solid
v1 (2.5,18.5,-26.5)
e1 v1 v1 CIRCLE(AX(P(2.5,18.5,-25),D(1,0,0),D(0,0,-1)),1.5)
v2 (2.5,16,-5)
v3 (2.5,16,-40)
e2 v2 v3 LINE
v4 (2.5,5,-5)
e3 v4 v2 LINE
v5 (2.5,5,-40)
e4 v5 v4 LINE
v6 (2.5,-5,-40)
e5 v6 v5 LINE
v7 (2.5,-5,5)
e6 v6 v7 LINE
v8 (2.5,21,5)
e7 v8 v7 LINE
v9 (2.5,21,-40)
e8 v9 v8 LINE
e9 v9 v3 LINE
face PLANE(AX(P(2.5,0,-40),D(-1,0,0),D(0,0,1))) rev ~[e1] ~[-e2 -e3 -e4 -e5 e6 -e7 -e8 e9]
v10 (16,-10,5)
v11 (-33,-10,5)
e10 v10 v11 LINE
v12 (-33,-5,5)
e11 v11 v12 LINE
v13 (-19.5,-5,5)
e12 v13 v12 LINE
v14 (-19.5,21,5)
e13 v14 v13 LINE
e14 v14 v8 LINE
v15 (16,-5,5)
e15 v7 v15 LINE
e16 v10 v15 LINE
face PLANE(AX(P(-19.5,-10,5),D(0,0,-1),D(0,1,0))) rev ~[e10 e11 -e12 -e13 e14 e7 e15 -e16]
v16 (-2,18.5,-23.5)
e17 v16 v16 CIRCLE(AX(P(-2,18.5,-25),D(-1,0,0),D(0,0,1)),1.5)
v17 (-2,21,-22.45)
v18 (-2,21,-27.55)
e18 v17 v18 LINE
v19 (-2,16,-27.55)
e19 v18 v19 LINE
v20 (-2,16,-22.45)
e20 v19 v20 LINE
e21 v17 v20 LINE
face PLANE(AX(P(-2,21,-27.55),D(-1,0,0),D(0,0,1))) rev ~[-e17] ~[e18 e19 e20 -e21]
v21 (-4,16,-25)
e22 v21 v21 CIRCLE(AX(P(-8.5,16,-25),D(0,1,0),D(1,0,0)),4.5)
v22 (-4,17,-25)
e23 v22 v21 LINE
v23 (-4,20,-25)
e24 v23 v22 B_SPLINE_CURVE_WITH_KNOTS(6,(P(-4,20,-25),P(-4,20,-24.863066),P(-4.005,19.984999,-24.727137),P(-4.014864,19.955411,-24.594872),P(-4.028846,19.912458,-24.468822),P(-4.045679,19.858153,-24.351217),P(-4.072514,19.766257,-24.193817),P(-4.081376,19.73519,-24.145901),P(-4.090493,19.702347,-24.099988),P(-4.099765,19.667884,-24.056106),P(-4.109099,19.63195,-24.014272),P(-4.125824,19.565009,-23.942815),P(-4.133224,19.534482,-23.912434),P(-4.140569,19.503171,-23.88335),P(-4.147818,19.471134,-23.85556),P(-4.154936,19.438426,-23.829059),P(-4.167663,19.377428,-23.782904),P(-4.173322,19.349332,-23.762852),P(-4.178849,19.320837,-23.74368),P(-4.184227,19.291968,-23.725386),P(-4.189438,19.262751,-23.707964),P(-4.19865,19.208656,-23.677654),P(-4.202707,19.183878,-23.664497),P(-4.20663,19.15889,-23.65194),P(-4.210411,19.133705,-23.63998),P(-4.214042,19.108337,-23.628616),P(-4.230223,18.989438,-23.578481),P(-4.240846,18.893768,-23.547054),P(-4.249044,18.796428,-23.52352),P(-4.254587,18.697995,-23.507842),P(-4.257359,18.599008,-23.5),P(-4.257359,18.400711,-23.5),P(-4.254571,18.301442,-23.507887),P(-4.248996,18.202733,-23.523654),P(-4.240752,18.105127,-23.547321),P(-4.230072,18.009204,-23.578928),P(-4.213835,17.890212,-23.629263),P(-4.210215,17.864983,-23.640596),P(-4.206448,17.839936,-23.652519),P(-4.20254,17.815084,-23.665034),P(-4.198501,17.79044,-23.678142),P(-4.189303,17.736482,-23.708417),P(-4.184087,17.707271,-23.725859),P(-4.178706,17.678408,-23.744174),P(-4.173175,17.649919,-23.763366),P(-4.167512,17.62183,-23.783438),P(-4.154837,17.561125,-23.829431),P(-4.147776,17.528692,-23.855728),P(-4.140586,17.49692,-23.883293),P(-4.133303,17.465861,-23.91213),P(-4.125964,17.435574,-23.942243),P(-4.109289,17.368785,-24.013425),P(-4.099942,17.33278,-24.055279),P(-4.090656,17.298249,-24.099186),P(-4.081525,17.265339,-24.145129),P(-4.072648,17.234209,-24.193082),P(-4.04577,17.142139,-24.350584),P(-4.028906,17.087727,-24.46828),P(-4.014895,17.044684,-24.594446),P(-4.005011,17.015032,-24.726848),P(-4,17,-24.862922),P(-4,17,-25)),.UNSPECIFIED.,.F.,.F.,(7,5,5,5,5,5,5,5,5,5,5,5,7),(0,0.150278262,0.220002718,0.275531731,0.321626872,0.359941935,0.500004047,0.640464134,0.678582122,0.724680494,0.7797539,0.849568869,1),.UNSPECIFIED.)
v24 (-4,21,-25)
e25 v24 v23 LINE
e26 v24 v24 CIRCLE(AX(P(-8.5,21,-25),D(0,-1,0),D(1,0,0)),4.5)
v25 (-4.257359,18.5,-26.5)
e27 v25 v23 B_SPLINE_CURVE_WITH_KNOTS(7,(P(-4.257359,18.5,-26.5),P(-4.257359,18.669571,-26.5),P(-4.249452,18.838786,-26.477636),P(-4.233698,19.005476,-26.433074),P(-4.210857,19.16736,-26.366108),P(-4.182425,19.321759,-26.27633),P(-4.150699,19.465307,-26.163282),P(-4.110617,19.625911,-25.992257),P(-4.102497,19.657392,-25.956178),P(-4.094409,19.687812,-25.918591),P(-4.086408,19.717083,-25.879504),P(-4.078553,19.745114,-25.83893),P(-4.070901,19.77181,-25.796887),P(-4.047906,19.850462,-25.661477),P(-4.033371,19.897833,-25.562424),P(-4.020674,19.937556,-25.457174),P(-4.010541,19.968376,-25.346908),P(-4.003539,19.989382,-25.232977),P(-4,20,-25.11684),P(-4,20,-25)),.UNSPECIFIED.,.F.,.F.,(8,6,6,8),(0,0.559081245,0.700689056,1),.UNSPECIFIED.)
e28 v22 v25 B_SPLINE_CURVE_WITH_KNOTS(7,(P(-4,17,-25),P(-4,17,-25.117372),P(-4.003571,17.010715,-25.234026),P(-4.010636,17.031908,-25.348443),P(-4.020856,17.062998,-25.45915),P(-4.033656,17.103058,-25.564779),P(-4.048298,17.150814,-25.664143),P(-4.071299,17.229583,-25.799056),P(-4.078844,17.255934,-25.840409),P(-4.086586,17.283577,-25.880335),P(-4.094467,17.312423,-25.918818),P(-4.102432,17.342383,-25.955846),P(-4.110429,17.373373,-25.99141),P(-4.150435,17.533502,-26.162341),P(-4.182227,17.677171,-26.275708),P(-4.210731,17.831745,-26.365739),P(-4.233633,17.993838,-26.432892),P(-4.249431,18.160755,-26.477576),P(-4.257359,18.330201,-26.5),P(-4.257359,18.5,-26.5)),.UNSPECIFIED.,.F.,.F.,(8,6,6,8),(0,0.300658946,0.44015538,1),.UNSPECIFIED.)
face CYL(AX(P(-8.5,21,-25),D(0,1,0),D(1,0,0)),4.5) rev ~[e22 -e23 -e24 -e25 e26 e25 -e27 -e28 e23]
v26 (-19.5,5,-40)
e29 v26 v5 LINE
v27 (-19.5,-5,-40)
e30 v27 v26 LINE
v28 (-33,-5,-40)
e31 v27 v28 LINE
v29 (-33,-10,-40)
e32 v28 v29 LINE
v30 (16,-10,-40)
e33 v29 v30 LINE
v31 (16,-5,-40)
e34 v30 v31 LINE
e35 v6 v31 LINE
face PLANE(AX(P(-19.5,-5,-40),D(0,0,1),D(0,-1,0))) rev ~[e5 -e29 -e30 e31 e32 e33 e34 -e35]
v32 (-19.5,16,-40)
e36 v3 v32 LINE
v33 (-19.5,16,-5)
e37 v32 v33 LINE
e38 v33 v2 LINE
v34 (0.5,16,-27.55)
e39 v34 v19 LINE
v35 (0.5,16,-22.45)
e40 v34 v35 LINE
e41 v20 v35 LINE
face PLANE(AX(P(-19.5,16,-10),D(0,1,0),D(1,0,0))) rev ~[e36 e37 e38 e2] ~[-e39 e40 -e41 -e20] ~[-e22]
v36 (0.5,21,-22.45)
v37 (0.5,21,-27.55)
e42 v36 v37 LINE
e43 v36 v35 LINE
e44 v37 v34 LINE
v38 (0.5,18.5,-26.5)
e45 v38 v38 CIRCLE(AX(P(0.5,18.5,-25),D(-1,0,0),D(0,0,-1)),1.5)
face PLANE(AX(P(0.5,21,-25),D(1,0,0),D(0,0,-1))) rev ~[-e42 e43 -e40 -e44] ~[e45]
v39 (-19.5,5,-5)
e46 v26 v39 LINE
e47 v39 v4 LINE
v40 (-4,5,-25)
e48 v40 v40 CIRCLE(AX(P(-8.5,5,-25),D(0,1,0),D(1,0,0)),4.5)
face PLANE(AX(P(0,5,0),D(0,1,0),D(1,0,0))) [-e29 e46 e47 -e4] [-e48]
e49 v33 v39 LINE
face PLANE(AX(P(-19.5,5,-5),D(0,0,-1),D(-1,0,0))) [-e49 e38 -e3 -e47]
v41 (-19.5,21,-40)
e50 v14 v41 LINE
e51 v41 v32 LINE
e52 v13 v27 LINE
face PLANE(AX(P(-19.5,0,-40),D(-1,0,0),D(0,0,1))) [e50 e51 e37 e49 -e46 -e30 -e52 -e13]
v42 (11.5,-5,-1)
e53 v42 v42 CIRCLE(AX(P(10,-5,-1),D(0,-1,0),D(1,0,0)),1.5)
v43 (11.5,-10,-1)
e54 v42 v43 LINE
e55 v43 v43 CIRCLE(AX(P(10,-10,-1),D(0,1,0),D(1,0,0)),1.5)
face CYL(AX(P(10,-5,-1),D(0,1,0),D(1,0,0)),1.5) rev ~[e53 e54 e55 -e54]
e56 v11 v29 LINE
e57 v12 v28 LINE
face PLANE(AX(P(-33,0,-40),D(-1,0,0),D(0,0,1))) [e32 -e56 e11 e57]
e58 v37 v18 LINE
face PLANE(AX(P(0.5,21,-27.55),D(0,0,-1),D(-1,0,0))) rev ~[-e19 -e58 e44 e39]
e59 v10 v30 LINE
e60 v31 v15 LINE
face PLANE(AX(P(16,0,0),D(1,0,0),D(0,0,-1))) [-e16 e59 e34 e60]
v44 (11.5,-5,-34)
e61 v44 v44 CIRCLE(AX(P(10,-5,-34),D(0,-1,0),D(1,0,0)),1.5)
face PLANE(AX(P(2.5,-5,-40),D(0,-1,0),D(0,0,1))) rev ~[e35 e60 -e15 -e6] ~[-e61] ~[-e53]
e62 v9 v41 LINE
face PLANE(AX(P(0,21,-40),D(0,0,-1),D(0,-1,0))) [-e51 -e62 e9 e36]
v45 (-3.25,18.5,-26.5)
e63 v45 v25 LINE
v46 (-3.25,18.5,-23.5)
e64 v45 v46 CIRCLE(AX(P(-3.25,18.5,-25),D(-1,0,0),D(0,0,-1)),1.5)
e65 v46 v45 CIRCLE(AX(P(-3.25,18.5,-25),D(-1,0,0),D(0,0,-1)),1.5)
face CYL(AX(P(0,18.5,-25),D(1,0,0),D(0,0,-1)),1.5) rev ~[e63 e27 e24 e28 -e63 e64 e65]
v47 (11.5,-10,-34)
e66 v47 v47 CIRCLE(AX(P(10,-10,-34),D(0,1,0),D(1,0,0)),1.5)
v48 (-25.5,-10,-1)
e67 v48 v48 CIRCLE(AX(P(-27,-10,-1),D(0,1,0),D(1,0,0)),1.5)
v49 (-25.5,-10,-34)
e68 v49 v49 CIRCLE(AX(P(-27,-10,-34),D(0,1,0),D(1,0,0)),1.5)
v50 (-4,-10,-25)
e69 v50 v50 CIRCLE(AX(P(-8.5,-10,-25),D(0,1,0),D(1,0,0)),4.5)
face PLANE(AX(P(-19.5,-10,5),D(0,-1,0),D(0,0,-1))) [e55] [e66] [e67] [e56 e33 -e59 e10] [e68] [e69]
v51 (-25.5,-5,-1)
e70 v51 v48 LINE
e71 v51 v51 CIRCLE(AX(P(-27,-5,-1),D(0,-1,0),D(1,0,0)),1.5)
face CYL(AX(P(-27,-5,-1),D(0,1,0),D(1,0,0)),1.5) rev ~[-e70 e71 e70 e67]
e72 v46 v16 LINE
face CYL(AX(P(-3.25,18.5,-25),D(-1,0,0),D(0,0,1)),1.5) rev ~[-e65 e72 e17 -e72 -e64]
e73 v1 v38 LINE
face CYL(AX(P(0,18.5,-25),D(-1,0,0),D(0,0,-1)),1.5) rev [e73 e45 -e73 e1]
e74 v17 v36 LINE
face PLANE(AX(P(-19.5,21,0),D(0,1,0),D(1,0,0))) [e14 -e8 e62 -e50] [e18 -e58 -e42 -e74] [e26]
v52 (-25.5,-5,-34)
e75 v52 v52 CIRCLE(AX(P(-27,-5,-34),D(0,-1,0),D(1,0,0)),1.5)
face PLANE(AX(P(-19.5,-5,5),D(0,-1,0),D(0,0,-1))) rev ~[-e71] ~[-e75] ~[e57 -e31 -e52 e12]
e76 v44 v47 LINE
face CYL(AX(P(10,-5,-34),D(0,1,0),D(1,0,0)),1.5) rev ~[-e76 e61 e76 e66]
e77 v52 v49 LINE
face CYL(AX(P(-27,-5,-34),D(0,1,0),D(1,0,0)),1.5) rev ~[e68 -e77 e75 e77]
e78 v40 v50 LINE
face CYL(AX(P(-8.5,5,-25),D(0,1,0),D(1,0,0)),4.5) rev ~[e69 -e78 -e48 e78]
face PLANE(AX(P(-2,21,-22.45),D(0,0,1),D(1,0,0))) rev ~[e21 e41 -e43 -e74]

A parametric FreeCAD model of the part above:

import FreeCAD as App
import Part
import Sketcher

doc = App.newDocument("Part")
body = doc.addObject("PartDesign::Body", "Body")

# Sketch on XZ plane
sketch1 = body.newObject("Sketcher::SketchObject", "Sketch")
sketch1.AttachmentSupport = (doc.getObject("XZ_Plane"), [""])
sketch1.MapMode = "FlatFace"
sketch1.addGeometry(Part.LineSegment(App.Vector(-17, 0, 0), App.Vector(0, 0, 0)), False)
sketch1.addGeometry(Part.LineSegment(App.Vector(0, 0, 0), App.Vector(0, -40, 0)), False)
sketch1.addGeometry(Part.LineSegment(App.Vector(0, -40, 0), App.Vector(-17, -40, 0)), False)
sketch1.addGeometry(Part.LineSegment(App.Vector(-17, -40, 0), App.Vector(-17, 0, 0)), False)
sketch1.addConstraint(Sketcher.Constraint("Coincident", 0, 2, 1, 1))
sketch1.addConstraint(Sketcher.Constraint("Coincident", 1, 2, 2, 1))
sketch1.addConstraint(Sketcher.Constraint("Coincident", 2, 2, 3, 1))
sketch1.addConstraint(Sketcher.Constraint("Coincident", 3, 2, 0, 1))
sketch1.addConstraint(Sketcher.Constraint("Horizontal", 0))
sketch1.addConstraint(Sketcher.Constraint("Vertical", 1))
sketch1.addConstraint(Sketcher.Constraint("Horizontal", 2))
sketch1.addConstraint(Sketcher.Constraint("Vertical", 3))
sketch1.addConstraint(Sketcher.Constraint("Coincident", 0, 2, -1, 1))
sketch1.addConstraint(Sketcher.Constraint("DistanceX", 0, 1, 0, 2, 17.0))
sketch1.addConstraint(Sketcher.Constraint("DistanceY", 1, 2, 1, 1, 40.0))
pad1 = body.newObject("PartDesign::Pad", "Pad")
pad1.Profile = sketch1
pad1.Length = 5
pad1.Reversed = True

# Sketch on XZ plane
sketch2 = body.newObject("Sketcher::SketchObject", "Sketch001")
sketch2.AttachmentSupport = (doc.getObject("XZ_Plane"), [""])
sketch2.MapMode = "FlatFace"
sketch2.AttachmentOffset = App.Placement(App.Vector(0, 0, -5), App.Rotation())
sketch2.addGeometry(Part.LineSegment(App.Vector(-17, -10, 0), App.Vector(-17, 0, 0)), False)
sketch2.addGeometry(Part.LineSegment(App.Vector(-17, 0, 0), App.Vector(0, 0, 0)), False)
sketch2.addGeometry(Part.LineSegment(App.Vector(0, 0, 0), App.Vector(0, -10, 0)), False)
sketch2.addGeometry(Part.LineSegment(App.Vector(0, -10, 0), App.Vector(-17, -10, 0)), False)
sketch2.addConstraint(Sketcher.Constraint("Coincident", 0, 2, 1, 1))
sketch2.addConstraint(Sketcher.Constraint("Coincident", 1, 2, 2, 1))
sketch2.addConstraint(Sketcher.Constraint("Coincident", 2, 2, 3, 1))
sketch2.addConstraint(Sketcher.Constraint("Coincident", 3, 2, 0, 1))
sketch2.addConstraint(Sketcher.Constraint("Vertical", 0))
sketch2.addConstraint(Sketcher.Constraint("Horizontal", 1))
sketch2.addConstraint(Sketcher.Constraint("Vertical", 2))
sketch2.addConstraint(Sketcher.Constraint("Horizontal", 3))
sketch2.addConstraint(Sketcher.Constraint("Coincident", 1, 2, -1, 1))
sketch2.addConstraint(Sketcher.Constraint("DistanceY", 0, 1, 0, 2, 10.0))
sketch2.addConstraint(Sketcher.Constraint("DistanceX", 1, 1, 1, 2, 17.0))
pad2 = body.newObject("PartDesign::Pad", "Pad001")
pad2.Profile = sketch2
pad2.Length = 11
pad2.Reversed = True

# Sketch on XZ plane
sketch3 = body.newObject("Sketcher::SketchObject", "Sketch002")
sketch3.AttachmentSupport = (doc.getObject("XZ_Plane"), [""])
sketch3.MapMode = "FlatFace"
sketch3.AttachmentOffset = App.Placement(App.Vector(0, 0, -16), App.Rotation())
sketch3.addGeometry(Part.LineSegment(App.Vector(-17, -40, 0), App.Vector(-17, 0, 0)), False)
sketch3.addGeometry(Part.LineSegment(App.Vector(-17, 0, 0), App.Vector(0, 0, 0)), False)
sketch3.addGeometry(Part.LineSegment(App.Vector(0, 0, 0), App.Vector(0, -40, 0)), False)
sketch3.addGeometry(Part.LineSegment(App.Vector(0, -40, 0), App.Vector(-17, -40, 0)), False)
sketch3.addConstraint(Sketcher.Constraint("Coincident", 0, 2, 1, 1))
sketch3.addConstraint(Sketcher.Constraint("Coincident", 1, 2, 2, 1))
sketch3.addConstraint(Sketcher.Constraint("Coincident", 2, 2, 3, 1))
sketch3.addConstraint(Sketcher.Constraint("Coincident", 3, 2, 0, 1))
sketch3.addConstraint(Sketcher.Constraint("Vertical", 0))
sketch3.addConstraint(Sketcher.Constraint("Horizontal", 1))
sketch3.addConstraint(Sketcher.Constraint("Vertical", 2))
sketch3.addConstraint(Sketcher.Constraint("Horizontal", 3))
sketch3.addConstraint(Sketcher.Constraint("Coincident", 1, 2, -1, 1))
sketch3.addConstraint(Sketcher.Constraint("DistanceX", 1, 1, 1, 2, 17.0))
sketch3.addConstraint(Sketcher.Constraint("DistanceY", 0, 1, 0, 2, 40.0))
pad3 = body.newObject("PartDesign::Pad", "Pad002")
pad3.Profile = sketch3
pad3.Length = 5
pad3.Reversed = True

# Sketch on XZ plane
sketch4 = body.newObject("Sketcher::SketchObject", "Sketch003")
sketch4.AttachmentSupport = (doc.getObject("XZ_Plane"), [""])
sketch4.MapMode = "FlatFace"
sketch4.AttachmentOffset = App.Placement(App.Vector(0, 0, -21), App.Rotation())
sketch4.addGeometry(Part.Circle(App.Vector(-8.5, -25, 0), App.Vector(0, 0, 1), 4.5), False)
sketch4.addConstraint(Sketcher.Constraint("Diameter", 0, 9.0))
sketch4.addConstraint(Sketcher.Constraint("DistanceX", 0, 3, -1, 1, 8.5))
sketch4.addConstraint(Sketcher.Constraint("DistanceY", 0, 3, -1, 1, 25.0))
pocket1 = body.newObject("PartDesign::Pocket", "Pocket")
pocket1.Profile = sketch4
pocket1.Length = 21
pocket1.Reversed = True

# Sketch on XZ plane
sketch5 = body.newObject("Sketcher::SketchObject", "Sketch004")
sketch5.AttachmentSupport = (doc.getObject("XZ_Plane"), [""])
sketch5.MapMode = "FlatFace"
sketch5.AttachmentOffset = App.Placement(App.Vector(0, 0, -21), App.Rotation())
sketch5.addGeometry(Part.LineSegment(App.Vector(-3.25, -27.55, 0), App.Vector(-3.25, -22.45, 0)), False)
sketch5.addGeometry(Part.LineSegment(App.Vector(-3.25, -22.45, 0), App.Vector(-0.75, -22.45, 0)), False)
sketch5.addGeometry(Part.LineSegment(App.Vector(-0.75, -22.45, 0), App.Vector(-0.75, -27.55, 0)), False)
sketch5.addGeometry(Part.LineSegment(App.Vector(-0.75, -27.55, 0), App.Vector(-3.25, -27.55, 0)), False)
sketch5.addConstraint(Sketcher.Constraint("Coincident", 0, 2, 1, 1))
sketch5.addConstraint(Sketcher.Constraint("Coincident", 1, 2, 2, 1))
sketch5.addConstraint(Sketcher.Constraint("Coincident", 2, 2, 3, 1))
sketch5.addConstraint(Sketcher.Constraint("Coincident", 3, 2, 0, 1))
sketch5.addConstraint(Sketcher.Constraint("Vertical", 0))
sketch5.addConstraint(Sketcher.Constraint("Horizontal", 1))
sketch5.addConstraint(Sketcher.Constraint("Vertical", 2))
sketch5.addConstraint(Sketcher.Constraint("Horizontal", 3))
sketch5.addConstraint(Sketcher.Constraint("DistanceX", 1, 1, 1, 2, 2.5))
sketch5.addConstraint(Sketcher.Constraint("DistanceY", 0, 1, 0, 2, 5.1))
sketch5.addConstraint(Sketcher.Constraint("DistanceX", 0, 2, -1, 1, 3.25))
sketch5.addConstraint(Sketcher.Constraint("DistanceY", 0, 2, -1, 1, 22.45))
pocket2 = body.newObject("PartDesign::Pocket", "Pocket001")
pocket2.Profile = sketch5
pocket2.Length = 5
pocket2.Reversed = True

# Sketch on YZ plane
sketch6 = body.newObject("Sketcher::SketchObject", "Sketch005")
sketch6.AttachmentSupport = (doc.getObject("YZ_Plane"), [""])
sketch6.MapMode = "FlatFace"
sketch6.addGeometry(Part.Circle(App.Vector(18.5, -25, 0), App.Vector(0, 0, 1), 1.5), False)
sketch6.addConstraint(Sketcher.Constraint("Diameter", 0, 3.0))
sketch6.addConstraint(Sketcher.Constraint("DistanceY", 0, 3, -1, 1, 25.0))
sketch6.addConstraint(Sketcher.Constraint("DistanceX", -1, 1, 0, 3, 18.5))
pocket3 = body.newObject("PartDesign::Pocket", "Pocket002")
pocket3.Profile = sketch6
pocket3.Length = 10

# Sketch on YZ plane
sketch7 = body.newObject("Sketcher::SketchObject", "Sketch006")
sketch7.AttachmentSupport = (doc.getObject("YZ_Plane"), [""])
sketch7.MapMode = "FlatFace"
sketch7.AttachmentOffset = App.Placement(App.Vector(0, 0, -17), App.Rotation())
sketch7.addGeometry(Part.LineSegment(App.Vector(0, 0, 0), App.Vector(21, 0, 0)), False)
sketch7.addGeometry(Part.LineSegment(App.Vector(21, 0, 0), App.Vector(21, -40, 0)), False)
sketch7.addGeometry(Part.LineSegment(App.Vector(21, -40, 0), App.Vector(16, -40, 0)), False)
sketch7.addGeometry(Part.LineSegment(App.Vector(16, -40, 0), App.Vector(16, -10, 0)), False)
sketch7.addGeometry(Part.LineSegment(App.Vector(16, -10, 0), App.Vector(5, -10, 0)), False)
sketch7.addGeometry(Part.LineSegment(App.Vector(5, -10, 0), App.Vector(5, -40, 0)), False)
sketch7.addGeometry(Part.LineSegment(App.Vector(5, -40, 0), App.Vector(0, -40, 0)), False)
sketch7.addGeometry(Part.LineSegment(App.Vector(0, -40, 0), App.Vector(0, 0, 0)), False)
sketch7.addConstraint(Sketcher.Constraint("Coincident", 0, 2, 1, 1))
sketch7.addConstraint(Sketcher.Constraint("Coincident", 1, 2, 2, 1))
sketch7.addConstraint(Sketcher.Constraint("Coincident", 2, 2, 3, 1))
sketch7.addConstraint(Sketcher.Constraint("Coincident", 3, 2, 4, 1))
sketch7.addConstraint(Sketcher.Constraint("Coincident", 4, 2, 5, 1))
sketch7.addConstraint(Sketcher.Constraint("Coincident", 5, 2, 6, 1))
sketch7.addConstraint(Sketcher.Constraint("Coincident", 6, 2, 7, 1))
sketch7.addConstraint(Sketcher.Constraint("Coincident", 7, 2, 0, 1))
sketch7.addConstraint(Sketcher.Constraint("Horizontal", 0))
sketch7.addConstraint(Sketcher.Constraint("Vertical", 1))
sketch7.addConstraint(Sketcher.Constraint("Horizontal", 2))
sketch7.addConstraint(Sketcher.Constraint("Vertical", 3))
sketch7.addConstraint(Sketcher.Constraint("Horizontal", 4))
sketch7.addConstraint(Sketcher.Constraint("Vertical", 5))
sketch7.addConstraint(Sketcher.Constraint("Horizontal", 6))
sketch7.addConstraint(Sketcher.Constraint("Vertical", 7))
sketch7.addConstraint(Sketcher.Constraint("Coincident", 7, 2, -1, 1))
sketch7.addConstraint(Sketcher.Constraint("Horizontal", 2, 2, 5, 2))
sketch7.addConstraint(Sketcher.Constraint("Equal", 2, 6))
sketch7.addConstraint(Sketcher.Constraint("DistanceY", 3, 2, -1, 1, 10.0))
sketch7.addConstraint(Sketcher.Constraint("DistanceX", 0, 1, 0, 2, 21.0))
sketch7.addConstraint(Sketcher.Constraint("DistanceX", 2, 2, 2, 1, 5.0))
sketch7.addConstraint(Sketcher.Constraint("DistanceY", 1, 2, 1, 1, 40.0))
pad4 = body.newObject("PartDesign::Pad", "Pad003")
pad4.Profile = sketch7
pad4.Length = 2.5
pad4.Reversed = True

# Sketch on YZ plane
sketch8 = body.newObject("Sketcher::SketchObject", "Sketch007")
sketch8.AttachmentSupport = (doc.getObject("YZ_Plane"), [""])
sketch8.MapMode = "FlatFace"
sketch8.addGeometry(Part.LineSegment(App.Vector(21, 0, 0), App.Vector(0, 0, 0)), False)
sketch8.addGeometry(Part.LineSegment(App.Vector(0, 0, 0), App.Vector(0, -40, 0)), False)
sketch8.addGeometry(Part.LineSegment(App.Vector(0, -40, 0), App.Vector(5, -40, 0)), False)
sketch8.addGeometry(Part.LineSegment(App.Vector(5, -40, 0), App.Vector(5, -10, 0)), False)
sketch8.addGeometry(Part.LineSegment(App.Vector(5, -10, 0), App.Vector(16, -10, 0)), False)
sketch8.addGeometry(Part.LineSegment(App.Vector(16, -10, 0), App.Vector(16, -40, 0)), False)
sketch8.addGeometry(Part.LineSegment(App.Vector(16, -40, 0), App.Vector(21, -40, 0)), False)
sketch8.addGeometry(Part.LineSegment(App.Vector(21, -40, 0), App.Vector(21, 0, 0)), False)
sketch8.addGeometry(Part.Circle(App.Vector(18.5, -25, 0), App.Vector(0, 0, 1), 1.5), False)
sketch8.addConstraint(Sketcher.Constraint("Coincident", 0, 2, 1, 1))
sketch8.addConstraint(Sketcher.Constraint("Coincident", 1, 2, 2, 1))
sketch8.addConstraint(Sketcher.Constraint("Coincident", 2, 2, 3, 1))
sketch8.addConstraint(Sketcher.Constraint("Coincident", 3, 2, 4, 1))
sketch8.addConstraint(Sketcher.Constraint("Coincident", 4, 2, 5, 1))
sketch8.addConstraint(Sketcher.Constraint("Coincident", 5, 2, 6, 1))
sketch8.addConstraint(Sketcher.Constraint("Coincident", 6, 2, 7, 1))
sketch8.addConstraint(Sketcher.Constraint("Coincident", 7, 2, 0, 1))
sketch8.addConstraint(Sketcher.Constraint("Horizontal", 0))
sketch8.addConstraint(Sketcher.Constraint("Vertical", 1))
sketch8.addConstraint(Sketcher.Constraint("Horizontal", 2))
sketch8.addConstraint(Sketcher.Constraint("Vertical", 3))
sketch8.addConstraint(Sketcher.Constraint("Horizontal", 4))
sketch8.addConstraint(Sketcher.Constraint("Vertical", 5))
sketch8.addConstraint(Sketcher.Constraint("Horizontal", 6))
sketch8.addConstraint(Sketcher.Constraint("Vertical", 7))
sketch8.addConstraint(Sketcher.Constraint("Coincident", 0, 2, -1, 1))
sketch8.addConstraint(Sketcher.Constraint("Horizontal", 2, 2, 5, 2))
sketch8.addConstraint(Sketcher.Constraint("Equal", 2, 6))
sketch8.addConstraint(Sketcher.Constraint("Diameter", 8, 3.0))
sketch8.addConstraint(Sketcher.Constraint("DistanceX", 0, 2, 0, 1, 21.0))
sketch8.addConstraint(Sketcher.Constraint("DistanceX", 2, 1, 2, 2, 5.0))
sketch8.addConstraint(Sketcher.Constraint("DistanceY", 1, 2, 1, 1, 40.0))
sketch8.addConstraint(Sketcher.Constraint("DistanceY", 3, 1, 3, 2, 30.0))
sketch8.addConstraint(Sketcher.Constraint("DistanceY", 8, 3, -1, 1, 25.0))
sketch8.addConstraint(Sketcher.Constraint("DistanceX", -1, 1, 8, 3, 18.5))
pad5 = body.newObject("PartDesign::Pad", "Pad004")
pad5.Profile = sketch8
pad5.Length = 2.5

# Sketch on XZ plane
sketch9 = body.newObject("Sketcher::SketchObject", "Sketch008")
sketch9.AttachmentSupport = (doc.getObject("XZ_Plane"), [""])
sketch9.MapMode = "FlatFace"
sketch9.AttachmentOffset = App.Placement(App.Vector(0, 0, -21), App.Rotation())
sketch9.addGeometry(Part.LineSegment(App.Vector(-0.75, -22.45, 0), App.Vector(-0.75, -27.55, 0)), False)
sketch9.addGeometry(Part.LineSegment(App.Vector(-0.75, -27.55, 0), App.Vector(-3.25, -27.55, 0)), False)
sketch9.addGeometry(Part.LineSegment(App.Vector(-3.25, -27.55, 0), App.Vector(-3.25, -22.45, 0)), False)
sketch9.addGeometry(Part.LineSegment(App.Vector(-3.25, -22.45, 0), App.Vector(-0.75, -22.45, 0)), False)
sketch9.addConstraint(Sketcher.Constraint("Coincident", 0, 2, 1, 1))
sketch9.addConstraint(Sketcher.Constraint("Coincident", 1, 2, 2, 1))
sketch9.addConstraint(Sketcher.Constraint("Coincident", 2, 2, 3, 1))
sketch9.addConstraint(Sketcher.Constraint("Coincident", 3, 2, 0, 1))
sketch9.addConstraint(Sketcher.Constraint("Vertical", 0))
sketch9.addConstraint(Sketcher.Constraint("Horizontal", 1))
sketch9.addConstraint(Sketcher.Constraint("Vertical", 2))
sketch9.addConstraint(Sketcher.Constraint("Horizontal", 3))
sketch9.addConstraint(Sketcher.Constraint("DistanceX", 1, 2, 1, 1, 2.5))
sketch9.addConstraint(Sketcher.Constraint("DistanceY", 0, 2, 0, 1, 5.1))
sketch9.addConstraint(Sketcher.Constraint("DistanceX", 0, 2, -1, 1, 0.75))
sketch9.addConstraint(Sketcher.Constraint("DistanceY", 0, 2, -1, 1, 27.55))
pad6 = body.newObject("PartDesign::Pad", "Pad005")
pad6.Profile = sketch9
pad6.Length = 5

# Sketch on XZ plane
sketch10 = body.newObject("Sketcher::SketchObject", "Sketch009")
sketch10.AttachmentSupport = (doc.getObject("XZ_Plane"), [""])
sketch10.MapMode = "FlatFace"
sketch10.AttachmentOffset = App.Placement(App.Vector(0, 0, -21), App.Rotation())
sketch10.addGeometry(Part.LineSegment(App.Vector(-2, -27.55, 0), App.Vector(-2, -22.45, 0)), False)
sketch10.addGeometry(Part.LineSegment(App.Vector(-2, -22.45, 0), App.Vector(0.5, -22.45, 0)), False)
sketch10.addGeometry(Part.LineSegment(App.Vector(0.5, -22.45, 0), App.Vector(0.5, -27.55, 0)), False)
sketch10.addGeometry(Part.LineSegment(App.Vector(0.5, -27.55, 0), App.Vector(-2, -27.55, 0)), False)
sketch10.addConstraint(Sketcher.Constraint("Coincident", 0, 2, 1, 1))
sketch10.addConstraint(Sketcher.Constraint("Coincident", 1, 2, 2, 1))
sketch10.addConstraint(Sketcher.Constraint("Coincident", 2, 2, 3, 1))
sketch10.addConstraint(Sketcher.Constraint("Coincident", 3, 2, 0, 1))
sketch10.addConstraint(Sketcher.Constraint("Vertical", 0))
sketch10.addConstraint(Sketcher.Constraint("Horizontal", 1))
sketch10.addConstraint(Sketcher.Constraint("Vertical", 2))
sketch10.addConstraint(Sketcher.Constraint("Horizontal", 3))
sketch10.addConstraint(Sketcher.Constraint("DistanceX", 1, 1, 1, 2, 2.5))
sketch10.addConstraint(Sketcher.Constraint("DistanceY", 0, 1, 0, 2, 5.1))
sketch10.addConstraint(Sketcher.Constraint("DistanceX", 0, 2, -1, 1, 2.0))
sketch10.addConstraint(Sketcher.Constraint("DistanceY", 0, 2, -1, 1, 22.45))
pocket4 = body.newObject("PartDesign::Pocket", "Pocket003")
pocket4.Profile = sketch10
pocket4.Length = 5
pocket4.Reversed = True

# Sketch on YZ plane
sketch11 = body.newObject("Sketcher::SketchObject", "Sketch010")
sketch11.AttachmentSupport = (doc.getObject("YZ_Plane"), [""])
sketch11.MapMode = "FlatFace"
sketch11.AttachmentOffset = App.Placement(App.Vector(0, 0, -3.25), App.Rotation())
sketch11.addGeometry(Part.Circle(App.Vector(18.5, -25, 0), App.Vector(0, 0, 1), 1.5), False)
sketch11.addConstraint(Sketcher.Constraint("Diameter", 0, 3.0))
sketch11.addConstraint(Sketcher.Constraint("DistanceY", 0, 3, -1, 1, 25.0))
sketch11.addConstraint(Sketcher.Constraint("DistanceX", -1, 1, 0, 3, 18.5))
pocket5 = body.newObject("PartDesign::Pocket", "Pocket004")
pocket5.Profile = sketch11
pocket5.Length = 8
pocket5.Reversed = True

# Sketch on XY plane
sketch12 = body.newObject("Sketcher::SketchObject", "Sketch011")
sketch12.AttachmentSupport = (doc.getObject("XY_Plane"), [""])
sketch12.MapMode = "FlatFace"
sketch12.addGeometry(Part.LineSegment(App.Vector(-19.5, 0, 0), App.Vector(2.5, 0, 0)), False)
sketch12.addGeometry(Part.LineSegment(App.Vector(2.5, 0, 0), App.Vector(2.5, 21, 0)), False)
sketch12.addGeometry(Part.LineSegment(App.Vector(2.5, 21, 0), App.Vector(-19.5, 21, 0)), False)
sketch12.addGeometry(Part.LineSegment(App.Vector(-19.5, 21, 0), App.Vector(-19.5, 0, 0)), False)
sketch12.addConstraint(Sketcher.Constraint("Coincident", 0, 2, 1, 1))
sketch12.addConstraint(Sketcher.Constraint("Coincident", 1, 2, 2, 1))
sketch12.addConstraint(Sketcher.Constraint("Coincident", 2, 2, 3, 1))
sketch12.addConstraint(Sketcher.Constraint("Coincident", 3, 2, 0, 1))
sketch12.addConstraint(Sketcher.Constraint("Horizontal", 0))
sketch12.addConstraint(Sketcher.Constraint("Vertical", 1))
sketch12.addConstraint(Sketcher.Constraint("Horizontal", 2))
sketch12.addConstraint(Sketcher.Constraint("Vertical", 3))
sketch12.addConstraint(Sketcher.Constraint("PointOnObject", 0, 2, -1))
sketch12.addConstraint(Sketcher.Constraint("DistanceX", 0, 1, 0, 2, 22.0))
sketch12.addConstraint(Sketcher.Constraint("DistanceY", 1, 1, 1, 2, 21.0))
sketch12.addConstraint(Sketcher.Constraint("DistanceX", -1, 1, 0, 2, 2.5))
pad7 = body.newObject("PartDesign::Pad", "Pad006")
pad7.Profile = sketch12
pad7.Length = 5

# Sketch on XY plane
sketch13 = body.newObject("Sketcher::SketchObject", "Sketch012")
sketch13.AttachmentSupport = (doc.getObject("XY_Plane"), [""])
sketch13.MapMode = "FlatFace"
sketch13.AttachmentOffset = App.Placement(App.Vector(0, 0, -10), App.Rotation())
sketch13.addGeometry(Part.LineSegment(App.Vector(-19.5, 5, 0), App.Vector(-19.5, 16, 0)), False)
sketch13.addGeometry(Part.LineSegment(App.Vector(-19.5, 16, 0), App.Vector(2.5, 16, 0)), False)
sketch13.addGeometry(Part.LineSegment(App.Vector(2.5, 16, 0), App.Vector(2.5, 5, 0)), False)
sketch13.addGeometry(Part.LineSegment(App.Vector(2.5, 5, 0), App.Vector(-19.5, 5, 0)), False)
sketch13.addConstraint(Sketcher.Constraint("Coincident", 0, 2, 1, 1))
sketch13.addConstraint(Sketcher.Constraint("Coincident", 1, 2, 2, 1))
sketch13.addConstraint(Sketcher.Constraint("Coincident", 2, 2, 3, 1))
sketch13.addConstraint(Sketcher.Constraint("Coincident", 3, 2, 0, 1))
sketch13.addConstraint(Sketcher.Constraint("Vertical", 0))
sketch13.addConstraint(Sketcher.Constraint("Horizontal", 1))
sketch13.addConstraint(Sketcher.Constraint("Vertical", 2))
sketch13.addConstraint(Sketcher.Constraint("Horizontal", 3))
sketch13.addConstraint(Sketcher.Constraint("DistanceX", 1, 1, 1, 2, 22.0))
sketch13.addConstraint(Sketcher.Constraint("DistanceY", 0, 1, 0, 2, 11.0))
sketch13.addConstraint(Sketcher.Constraint("DistanceY", -1, 1, 0, 2, 16.0))
sketch13.addConstraint(Sketcher.Constraint("DistanceX", 0, 2, -1, 1, 19.5))
pocket6 = body.newObject("PartDesign::Pocket", "Pocket005")
pocket6.Profile = sketch13
pocket6.Length = 5
pocket6.Reversed = True

# Sketch on YZ plane
sketch14 = body.newObject("Sketcher::SketchObject", "Sketch013")
sketch14.AttachmentSupport = (doc.getObject("YZ_Plane"), [""])
sketch14.MapMode = "FlatFace"
sketch14.AttachmentOffset = App.Placement(App.Vector(0, 0, -19.5), App.Rotation())
sketch14.addGeometry(Part.LineSegment(App.Vector(5, -40, 0), App.Vector(0, -40, 0)), False)
sketch14.addGeometry(Part.LineSegment(App.Vector(0, -40, 0), App.Vector(0, 5, 0)), False)
sketch14.addGeometry(Part.LineSegment(App.Vector(0, 5, 0), App.Vector(5, 5, 0)), False)
sketch14.addGeometry(Part.LineSegment(App.Vector(5, 5, 0), App.Vector(5, -40, 0)), False)
sketch14.addConstraint(Sketcher.Constraint("Coincident", 0, 2, 1, 1))
sketch14.addConstraint(Sketcher.Constraint("Coincident", 1, 2, 2, 1))
sketch14.addConstraint(Sketcher.Constraint("Coincident", 2, 2, 3, 1))
sketch14.addConstraint(Sketcher.Constraint("Coincident", 3, 2, 0, 1))
sketch14.addConstraint(Sketcher.Constraint("Horizontal", 0))
sketch14.addConstraint(Sketcher.Constraint("Vertical", 1))
sketch14.addConstraint(Sketcher.Constraint("Horizontal", 2))
sketch14.addConstraint(Sketcher.Constraint("Vertical", 3))
sketch14.addConstraint(Sketcher.Constraint("PointOnObject", 0, 2, -2))
sketch14.addConstraint(Sketcher.Constraint("DistanceX", 0, 2, 0, 1, 5.0))
sketch14.addConstraint(Sketcher.Constraint("DistanceY", 1, 1, 1, 2, 45.0))
sketch14.addConstraint(Sketcher.Constraint("DistanceY", 0, 2, -1, 1, 40.0))
pad8 = body.newObject("PartDesign::Pad", "Pad007")
pad8.Profile = sketch14
pad8.Length = 13.5
pad8.Reversed = True

# Sketch on YZ plane
sketch15 = body.newObject("Sketcher::SketchObject", "Sketch014")
sketch15.AttachmentSupport = (doc.getObject("YZ_Plane"), [""])
sketch15.MapMode = "FlatFace"
sketch15.AttachmentOffset = App.Placement(App.Vector(0, 0, 2.5), App.Rotation())
sketch15.addGeometry(Part.LineSegment(App.Vector(0, 5, 0), App.Vector(0, -40, 0)), False)
sketch15.addGeometry(Part.LineSegment(App.Vector(0, -40, 0), App.Vector(5, -40, 0)), False)
sketch15.addGeometry(Part.LineSegment(App.Vector(5, -40, 0), App.Vector(5, 5, 0)), False)
sketch15.addGeometry(Part.LineSegment(App.Vector(5, 5, 0), App.Vector(0, 5, 0)), False)
sketch15.addConstraint(Sketcher.Constraint("Coincident", 0, 2, 1, 1))
sketch15.addConstraint(Sketcher.Constraint("Coincident", 1, 2, 2, 1))
sketch15.addConstraint(Sketcher.Constraint("Coincident", 2, 2, 3, 1))
sketch15.addConstraint(Sketcher.Constraint("Coincident", 3, 2, 0, 1))
sketch15.addConstraint(Sketcher.Constraint("Vertical", 0))
sketch15.addConstraint(Sketcher.Constraint("Horizontal", 1))
sketch15.addConstraint(Sketcher.Constraint("Vertical", 2))
sketch15.addConstraint(Sketcher.Constraint("Horizontal", 3))
sketch15.addConstraint(Sketcher.Constraint("PointOnObject", 0, 2, -2))
sketch15.addConstraint(Sketcher.Constraint("DistanceX", 1, 1, 1, 2, 5.0))
sketch15.addConstraint(Sketcher.Constraint("DistanceY", 0, 2, 0, 1, 45.0))
sketch15.addConstraint(Sketcher.Constraint("DistanceY", 0, 2, -1, 1, 40.0))
pad9 = body.newObject("PartDesign::Pad", "Pad008")
pad9.Profile = sketch15
pad9.Length = 13.5

# Sketch on XZ plane
sketch16 = body.newObject("Sketcher::SketchObject", "Sketch015")
sketch16.AttachmentSupport = (doc.getObject("XZ_Plane"), [""])
sketch16.MapMode = "FlatFace"
sketch16.AttachmentOffset = App.Placement(App.Vector(0, 0, -5), App.Rotation())
sketch16.addGeometry(Part.Circle(App.Vector(10, -34, 0), App.Vector(0, 0, 1), 1.5), False)
sketch16.addConstraint(Sketcher.Constraint("Diameter", 0, 3.0))
sketch16.addConstraint(Sketcher.Constraint("DistanceX", -1, 1, 0, 3, 10.0))
sketch16.addConstraint(Sketcher.Constraint("DistanceY", 0, 3, -1, 1, 34.0))
pocket7 = body.newObject("PartDesign::Pocket", "Pocket006")
pocket7.Profile = sketch16
pocket7.Length = 13.5
pocket7.Reversed = True

# Sketch on XZ plane
sketch17 = body.newObject("Sketcher::SketchObject", "Sketch016")
sketch17.AttachmentSupport = (doc.getObject("XZ_Plane"), [""])
sketch17.MapMode = "FlatFace"
sketch17.AttachmentOffset = App.Placement(App.Vector(0, 0, -5), App.Rotation())
sketch17.addGeometry(Part.Circle(App.Vector(10, -1, 0), App.Vector(0, 0, 1), 1.5), False)
sketch17.addConstraint(Sketcher.Constraint("Diameter", 0, 3.0))
sketch17.addConstraint(Sketcher.Constraint("DistanceX", -1, 1, 0, 3, 10.0))
sketch17.addConstraint(Sketcher.Constraint("DistanceY", 0, 3, -1, 1, 1.0))
pocket8 = body.newObject("PartDesign::Pocket", "Pocket007")
pocket8.Profile = sketch17
pocket8.Length = 13.5
pocket8.Reversed = True

# Sketch on XZ plane
sketch18 = body.newObject("Sketcher::SketchObject", "Sketch017")
sketch18.AttachmentSupport = (doc.getObject("XZ_Plane"), [""])
sketch18.MapMode = "FlatFace"
sketch18.AttachmentOffset = App.Placement(App.Vector(0, 0, -5), App.Rotation())
sketch18.addGeometry(Part.Circle(App.Vector(-27, -34, 0), App.Vector(0, 0, 1), 1.5), False)
sketch18.addConstraint(Sketcher.Constraint("Diameter", 0, 3.0))
sketch18.addConstraint(Sketcher.Constraint("DistanceX", 0, 3, -1, 1, 27.0))
sketch18.addConstraint(Sketcher.Constraint("DistanceY", 0, 3, -1, 1, 34.0))
pocket9 = body.newObject("PartDesign::Pocket", "Pocket008")
pocket9.Profile = sketch18
pocket9.Length = 13.5
pocket9.Reversed = True

# Sketch on XZ plane
sketch19 = body.newObject("Sketcher::SketchObject", "Sketch018")
sketch19.AttachmentSupport = (doc.getObject("XZ_Plane"), [""])
sketch19.MapMode = "FlatFace"
sketch19.AttachmentOffset = App.Placement(App.Vector(0, 0, -5), App.Rotation())
sketch19.addGeometry(Part.Circle(App.Vector(-27, -1, 0), App.Vector(0, 0, 1), 1.5), False)
sketch19.addConstraint(Sketcher.Constraint("Diameter", 0, 3.0))
sketch19.addConstraint(Sketcher.Constraint("DistanceX", 0, 3, -1, 1, 27.0))
sketch19.addConstraint(Sketcher.Constraint("DistanceY", 0, 3, -1, 1, 1.0))
pocket10 = body.newObject("PartDesign::Pocket", "Pocket009")
pocket10.Profile = sketch19
pocket10.Length = 13.5
pocket10.Reversed = True

# Sketch on XZ plane
sketch20 = body.newObject("Sketcher::SketchObject", "Sketch019")
sketch20.AttachmentSupport = (doc.getObject("XZ_Plane"), [""])
sketch20.MapMode = "FlatFace"
sketch20.AttachmentOffset = App.Placement(App.Vector(0, 0, -5), App.Rotation())
sketch20.addGeometry(Part.LineSegment(App.Vector(2.5, -40, 0), App.Vector(2.5, 5, 0)), False)
sketch20.addGeometry(Part.LineSegment(App.Vector(2.5, 5, 0), App.Vector(16, 5, 0)), False)
sketch20.addGeometry(Part.LineSegment(App.Vector(16, 5, 0), App.Vector(16, -40, 0)), False)
sketch20.addGeometry(Part.LineSegment(App.Vector(16, -40, 0), App.Vector(2.5, -40, 0)), False)
sketch20.addConstraint(Sketcher.Constraint("Coincident", 0, 2, 1, 1))
sketch20.addConstraint(Sketcher.Constraint("Coincident", 1, 2, 2, 1))
sketch20.addConstraint(Sketcher.Constraint("Coincident", 2, 2, 3, 1))
sketch20.addConstraint(Sketcher.Constraint("Coincident", 3, 2, 0, 1))
sketch20.addConstraint(Sketcher.Constraint("Vertical", 0))
sketch20.addConstraint(Sketcher.Constraint("Horizontal", 1))
sketch20.addConstraint(Sketcher.Constraint("Vertical", 2))
sketch20.addConstraint(Sketcher.Constraint("Horizontal", 3))
sketch20.addConstraint(Sketcher.Constraint("DistanceY", 0, 1, 0, 2, 45.0))
sketch20.addConstraint(Sketcher.Constraint("DistanceX", 1, 1, 1, 2, 13.5))
sketch20.addConstraint(Sketcher.Constraint("DistanceY", -1, 1, 0, 2, 5.0))
sketch20.addConstraint(Sketcher.Constraint("DistanceX", -1, 1, 1, 2, 16.0))
pocket11 = body.newObject("PartDesign::Pocket", "Pocket010")
pocket11.Profile = sketch20
pocket11.Length = 10
pocket11.Reversed = True

# Sketch on XZ plane
sketch21 = body.newObject("Sketcher::SketchObject", "Sketch020")
sketch21.AttachmentSupport = (doc.getObject("XZ_Plane"), [""])
sketch21.MapMode = "FlatFace"
sketch21.AttachmentOffset = App.Placement(App.Vector(0, 0, -5), App.Rotation())
sketch21.addGeometry(Part.LineSegment(App.Vector(-19.5, 5, 0), App.Vector(-19.5, -40, 0)), False)
sketch21.addGeometry(Part.LineSegment(App.Vector(-19.5, -40, 0), App.Vector(-33, -40, 0)), False)
sketch21.addGeometry(Part.LineSegment(App.Vector(-33, -40, 0), App.Vector(-33, 5, 0)), False)
sketch21.addGeometry(Part.LineSegment(App.Vector(-33, 5, 0), App.Vector(-19.5, 5, 0)), False)
sketch21.addConstraint(Sketcher.Constraint("Coincident", 0, 2, 1, 1))
sketch21.addConstraint(Sketcher.Constraint("Coincident", 1, 2, 2, 1))
sketch21.addConstraint(Sketcher.Constraint("Coincident", 2, 2, 3, 1))
sketch21.addConstraint(Sketcher.Constraint("Coincident", 3, 2, 0, 1))
sketch21.addConstraint(Sketcher.Constraint("Vertical", 0))
sketch21.addConstraint(Sketcher.Constraint("Horizontal", 1))
sketch21.addConstraint(Sketcher.Constraint("Vertical", 2))
sketch21.addConstraint(Sketcher.Constraint("Horizontal", 3))
sketch21.addConstraint(Sketcher.Constraint("DistanceY", 0, 2, 0, 1, 45.0))
sketch21.addConstraint(Sketcher.Constraint("DistanceX", 1, 2, 1, 1, 13.5))
sketch21.addConstraint(Sketcher.Constraint("DistanceY", 0, 2, -1, 1, 40.0))
sketch21.addConstraint(Sketcher.Constraint("DistanceX", 1, 2, -1, 1, 33.0))
pocket12 = body.newObject("PartDesign::Pocket", "Pocket011")
pocket12.Profile = sketch21
pocket12.Length = 10
pocket12.Reversed = True

# Sketch on XZ plane
sketch22 = body.newObject("Sketcher::SketchObject", "Sketch021")
sketch22.AttachmentSupport = (doc.getObject("XZ_Plane"), [""])
sketch22.MapMode = "FlatFace"
sketch22.addGeometry(Part.LineSegment(App.Vector(2.5, -40, 0), App.Vector(2.5, 5, 0)), False)
sketch22.addGeometry(Part.LineSegment(App.Vector(2.5, 5, 0), App.Vector(-19.5, 5, 0)), False)
sketch22.addGeometry(Part.LineSegment(App.Vector(-19.5, 5, 0), App.Vector(-19.5, -40, 0)), False)
sketch22.addGeometry(Part.LineSegment(App.Vector(-19.5, -40, 0), App.Vector(2.5, -40, 0)), False)
sketch22.addConstraint(Sketcher.Constraint("Coincident", 0, 2, 1, 1))
sketch22.addConstraint(Sketcher.Constraint("Coincident", 1, 2, 2, 1))
sketch22.addConstraint(Sketcher.Constraint("Coincident", 2, 2, 3, 1))
sketch22.addConstraint(Sketcher.Constraint("Coincident", 3, 2, 0, 1))
sketch22.addConstraint(Sketcher.Constraint("Vertical", 0))
sketch22.addConstraint(Sketcher.Constraint("Horizontal", 1))
sketch22.addConstraint(Sketcher.Constraint("Vertical", 2))
sketch22.addConstraint(Sketcher.Constraint("Horizontal", 3))
sketch22.addConstraint(Sketcher.Constraint("DistanceX", 1, 2, 1, 1, 22.0))
sketch22.addConstraint(Sketcher.Constraint("DistanceY", 0, 1, 0, 2, 45.0))
sketch22.addConstraint(Sketcher.Constraint("DistanceY", -1, 1, 0, 2, 5.0))
sketch22.addConstraint(Sketcher.Constraint("DistanceX", -1, 1, 0, 2, 2.5))
pad10 = body.newObject("PartDesign::Pad", "Pad009")
pad10.Profile = sketch22
pad10.Length = 10

# Sketch on XZ plane
sketch23 = body.newObject("Sketcher::SketchObject", "Sketch022")
sketch23.AttachmentSupport = (doc.getObject("XZ_Plane"), [""])
sketch23.MapMode = "FlatFace"
sketch23.AttachmentOffset = App.Placement(App.Vector(0, 0, -5), App.Rotation())
sketch23.addGeometry(Part.Circle(App.Vector(-8.5, -25, 0), App.Vector(0, 0, 1), 4.5), False)
sketch23.addConstraint(Sketcher.Constraint("Diameter", 0, 9.0))
sketch23.addConstraint(Sketcher.Constraint("DistanceY", 0, 3, -1, 1, 25.0))
sketch23.addConstraint(Sketcher.Constraint("DistanceX", 0, 3, -1, 1, 8.5))
pad11 = body.newObject("PartDesign::Pad", "Pad010")
pad11.Profile = sketch23
pad11.Length = 5

# Sketch on XZ plane
sketch24 = body.newObject("Sketcher::SketchObject", "Sketch023")
sketch24.AttachmentSupport = (doc.getObject("XZ_Plane"), [""])
sketch24.MapMode = "FlatFace"
sketch24.AttachmentOffset = App.Placement(App.Vector(0, 0, -5), App.Rotation())
sketch24.addGeometry(Part.Circle(App.Vector(-8.5, -25, 0), App.Vector(0, 0, 1), 4.5), False)
sketch24.addConstraint(Sketcher.Constraint("Diameter", 0, 9.0))
sketch24.addConstraint(Sketcher.Constraint("DistanceY", 0, 3, -1, 1, 25.0))
sketch24.addConstraint(Sketcher.Constraint("DistanceX", 0, 3, -1, 1, 8.5))
pocket13 = body.newObject("PartDesign::Pocket", "Pocket012")
pocket13.Profile = sketch24
pocket13.Length = 15
pocket13.Reversed = True

# Sketch on YZ plane
sketch25 = body.newObject("Sketcher::SketchObject", "Sketch024")
sketch25.AttachmentSupport = (doc.getObject("YZ_Plane"), [""])
sketch25.MapMode = "FlatFace"
sketch25.AttachmentOffset = App.Placement(App.Vector(0, 0, 2.5), App.Rotation())
sketch25.addGeometry(Part.LineSegment(App.Vector(-5, 5, 0), App.Vector(-10, 5, 0)), False)
sketch25.addGeometry(Part.LineSegment(App.Vector(-10, 5, 0), App.Vector(-10, -40, 0)), False)
sketch25.addGeometry(Part.LineSegment(App.Vector(-10, -40, 0), App.Vector(-5, -40, 0)), False)
sketch25.addGeometry(Part.LineSegment(App.Vector(-5, -40, 0), App.Vector(-5, 5, 0)), False)
sketch25.addConstraint(Sketcher.Constraint("Coincident", 0, 2, 1, 1))
sketch25.addConstraint(Sketcher.Constraint("Coincident", 1, 2, 2, 1))
sketch25.addConstraint(Sketcher.Constraint("Coincident", 2, 2, 3, 1))
sketch25.addConstraint(Sketcher.Constraint("Coincident", 3, 2, 0, 1))
sketch25.addConstraint(Sketcher.Constraint("Horizontal", 0))
sketch25.addConstraint(Sketcher.Constraint("Vertical", 1))
sketch25.addConstraint(Sketcher.Constraint("Horizontal", 2))
sketch25.addConstraint(Sketcher.Constraint("Vertical", 3))
sketch25.addConstraint(Sketcher.Constraint("DistanceX", 0, 2, 0, 1, 5.0))
sketch25.addConstraint(Sketcher.Constraint("DistanceY", 1, 2, 1, 1, 45.0))
sketch25.addConstraint(Sketcher.Constraint("DistanceY", -1, 1, 0, 2, 5.0))
sketch25.addConstraint(Sketcher.Constraint("DistanceX", 2, 2, -1, 1, 5.0))
pad12 = body.newObject("PartDesign::Pad", "Pad011")
pad12.Profile = sketch25
pad12.Length = 13.5

# Sketch on YZ plane
sketch26 = body.newObject("Sketcher::SketchObject", "Sketch025")
sketch26.AttachmentSupport = (doc.getObject("YZ_Plane"), [""])
sketch26.MapMode = "FlatFace"
sketch26.AttachmentOffset = App.Placement(App.Vector(0, 0, -19.5), App.Rotation())
sketch26.addGeometry(Part.LineSegment(App.Vector(-10, -40, 0), App.Vector(-10, 5, 0)), False)
sketch26.addGeometry(Part.LineSegment(App.Vector(-10, 5, 0), App.Vector(-5, 5, 0)), False)
sketch26.addGeometry(Part.LineSegment(App.Vector(-5, 5, 0), App.Vector(-5, -40, 0)), False)
sketch26.addGeometry(Part.LineSegment(App.Vector(-5, -40, 0), App.Vector(-10, -40, 0)), False)
sketch26.addConstraint(Sketcher.Constraint("Coincident", 0, 2, 1, 1))
sketch26.addConstraint(Sketcher.Constraint("Coincident", 1, 2, 2, 1))
sketch26.addConstraint(Sketcher.Constraint("Coincident", 2, 2, 3, 1))
sketch26.addConstraint(Sketcher.Constraint("Coincident", 3, 2, 0, 1))
sketch26.addConstraint(Sketcher.Constraint("Vertical", 0))
sketch26.addConstraint(Sketcher.Constraint("Horizontal", 1))
sketch26.addConstraint(Sketcher.Constraint("Vertical", 2))
sketch26.addConstraint(Sketcher.Constraint("Horizontal", 3))
sketch26.addConstraint(Sketcher.Constraint("DistanceX", 1, 1, 1, 2, 5.0))
sketch26.addConstraint(Sketcher.Constraint("DistanceY", 0, 1, 0, 2, 45.0))
sketch26.addConstraint(Sketcher.Constraint("DistanceY", -1, 1, 0, 2, 5.0))
sketch26.addConstraint(Sketcher.Constraint("DistanceX", 1, 2, -1, 1, 5.0))
pad13 = body.newObject("PartDesign::Pad", "Pad012")
pad13.Profile = sketch26
pad13.Length = 13.5
pad13.Reversed = True

# Sketch on XZ plane
sketch27 = body.newObject("Sketcher::SketchObject", "Sketch026")
sketch27.AttachmentSupport = (doc.getObject("XZ_Plane"), [""])
sketch27.MapMode = "FlatFace"
sketch27.AttachmentOffset = App.Placement(App.Vector(0, 0, 5), App.Rotation())
sketch27.addGeometry(Part.Circle(App.Vector(-27, -34, 0), App.Vector(0, 0, 1), 1.5), False)
sketch27.addConstraint(Sketcher.Constraint("Diameter", 0, 3.0))
sketch27.addConstraint(Sketcher.Constraint("DistanceX", 0, 3, -1, 1, 27.0))
sketch27.addConstraint(Sketcher.Constraint("DistanceY", 0, 3, -1, 1, 34.0))
pocket14 = body.newObject("PartDesign::Pocket", "Pocket013")
pocket14.Profile = sketch27
pocket14.Length = 5
pocket14.Reversed = True

# Sketch on XZ plane
sketch28 = body.newObject("Sketcher::SketchObject", "Sketch027")
sketch28.AttachmentSupport = (doc.getObject("XZ_Plane"), [""])
sketch28.MapMode = "FlatFace"
sketch28.AttachmentOffset = App.Placement(App.Vector(0, 0, 5), App.Rotation())
sketch28.addGeometry(Part.Circle(App.Vector(-27, -1, 0), App.Vector(0, 0, 1), 1.5), False)
sketch28.addConstraint(Sketcher.Constraint("Diameter", 0, 3.0))
sketch28.addConstraint(Sketcher.Constraint("DistanceX", 0, 3, -1, 1, 27.0))
sketch28.addConstraint(Sketcher.Constraint("DistanceY", 0, 3, -1, 1, 1.0))
pocket15 = body.newObject("PartDesign::Pocket", "Pocket014")
pocket15.Profile = sketch28
pocket15.Length = 5
pocket15.Reversed = True

# Sketch on XZ plane
sketch29 = body.newObject("Sketcher::SketchObject", "Sketch028")
sketch29.AttachmentSupport = (doc.getObject("XZ_Plane"), [""])
sketch29.MapMode = "FlatFace"
sketch29.AttachmentOffset = App.Placement(App.Vector(0, 0, 5), App.Rotation())
sketch29.addGeometry(Part.Circle(App.Vector(10, -34, 0), App.Vector(0, 0, 1), 1.5), False)
sketch29.addConstraint(Sketcher.Constraint("Diameter", 0, 3.0))
sketch29.addConstraint(Sketcher.Constraint("DistanceX", -1, 1, 0, 3, 10.0))
sketch29.addConstraint(Sketcher.Constraint("DistanceY", 0, 3, -1, 1, 34.0))
pocket16 = body.newObject("PartDesign::Pocket", "Pocket015")
pocket16.Profile = sketch29
pocket16.Length = 5
pocket16.Reversed = True

# Sketch on XZ plane
sketch30 = body.newObject("Sketcher::SketchObject", "Sketch029")
sketch30.AttachmentSupport = (doc.getObject("XZ_Plane"), [""])
sketch30.MapMode = "FlatFace"
sketch30.AttachmentOffset = App.Placement(App.Vector(0, 0, 5), App.Rotation())
sketch30.addGeometry(Part.Circle(App.Vector(10, -1, 0), App.Vector(0, 0, 1), 1.5), False)
sketch30.addConstraint(Sketcher.Constraint("Diameter", 0, 3.0))
sketch30.addConstraint(Sketcher.Constraint("DistanceX", -1, 1, 0, 3, 10.0))
sketch30.addConstraint(Sketcher.Constraint("DistanceY", 0, 3, -1, 1, 1.0))
pocket17 = body.newObject("PartDesign::Pocket", "Pocket016")
pocket17.Profile = sketch30
pocket17.Length = 5
pocket17.Reversed = True

doc.recompute()
